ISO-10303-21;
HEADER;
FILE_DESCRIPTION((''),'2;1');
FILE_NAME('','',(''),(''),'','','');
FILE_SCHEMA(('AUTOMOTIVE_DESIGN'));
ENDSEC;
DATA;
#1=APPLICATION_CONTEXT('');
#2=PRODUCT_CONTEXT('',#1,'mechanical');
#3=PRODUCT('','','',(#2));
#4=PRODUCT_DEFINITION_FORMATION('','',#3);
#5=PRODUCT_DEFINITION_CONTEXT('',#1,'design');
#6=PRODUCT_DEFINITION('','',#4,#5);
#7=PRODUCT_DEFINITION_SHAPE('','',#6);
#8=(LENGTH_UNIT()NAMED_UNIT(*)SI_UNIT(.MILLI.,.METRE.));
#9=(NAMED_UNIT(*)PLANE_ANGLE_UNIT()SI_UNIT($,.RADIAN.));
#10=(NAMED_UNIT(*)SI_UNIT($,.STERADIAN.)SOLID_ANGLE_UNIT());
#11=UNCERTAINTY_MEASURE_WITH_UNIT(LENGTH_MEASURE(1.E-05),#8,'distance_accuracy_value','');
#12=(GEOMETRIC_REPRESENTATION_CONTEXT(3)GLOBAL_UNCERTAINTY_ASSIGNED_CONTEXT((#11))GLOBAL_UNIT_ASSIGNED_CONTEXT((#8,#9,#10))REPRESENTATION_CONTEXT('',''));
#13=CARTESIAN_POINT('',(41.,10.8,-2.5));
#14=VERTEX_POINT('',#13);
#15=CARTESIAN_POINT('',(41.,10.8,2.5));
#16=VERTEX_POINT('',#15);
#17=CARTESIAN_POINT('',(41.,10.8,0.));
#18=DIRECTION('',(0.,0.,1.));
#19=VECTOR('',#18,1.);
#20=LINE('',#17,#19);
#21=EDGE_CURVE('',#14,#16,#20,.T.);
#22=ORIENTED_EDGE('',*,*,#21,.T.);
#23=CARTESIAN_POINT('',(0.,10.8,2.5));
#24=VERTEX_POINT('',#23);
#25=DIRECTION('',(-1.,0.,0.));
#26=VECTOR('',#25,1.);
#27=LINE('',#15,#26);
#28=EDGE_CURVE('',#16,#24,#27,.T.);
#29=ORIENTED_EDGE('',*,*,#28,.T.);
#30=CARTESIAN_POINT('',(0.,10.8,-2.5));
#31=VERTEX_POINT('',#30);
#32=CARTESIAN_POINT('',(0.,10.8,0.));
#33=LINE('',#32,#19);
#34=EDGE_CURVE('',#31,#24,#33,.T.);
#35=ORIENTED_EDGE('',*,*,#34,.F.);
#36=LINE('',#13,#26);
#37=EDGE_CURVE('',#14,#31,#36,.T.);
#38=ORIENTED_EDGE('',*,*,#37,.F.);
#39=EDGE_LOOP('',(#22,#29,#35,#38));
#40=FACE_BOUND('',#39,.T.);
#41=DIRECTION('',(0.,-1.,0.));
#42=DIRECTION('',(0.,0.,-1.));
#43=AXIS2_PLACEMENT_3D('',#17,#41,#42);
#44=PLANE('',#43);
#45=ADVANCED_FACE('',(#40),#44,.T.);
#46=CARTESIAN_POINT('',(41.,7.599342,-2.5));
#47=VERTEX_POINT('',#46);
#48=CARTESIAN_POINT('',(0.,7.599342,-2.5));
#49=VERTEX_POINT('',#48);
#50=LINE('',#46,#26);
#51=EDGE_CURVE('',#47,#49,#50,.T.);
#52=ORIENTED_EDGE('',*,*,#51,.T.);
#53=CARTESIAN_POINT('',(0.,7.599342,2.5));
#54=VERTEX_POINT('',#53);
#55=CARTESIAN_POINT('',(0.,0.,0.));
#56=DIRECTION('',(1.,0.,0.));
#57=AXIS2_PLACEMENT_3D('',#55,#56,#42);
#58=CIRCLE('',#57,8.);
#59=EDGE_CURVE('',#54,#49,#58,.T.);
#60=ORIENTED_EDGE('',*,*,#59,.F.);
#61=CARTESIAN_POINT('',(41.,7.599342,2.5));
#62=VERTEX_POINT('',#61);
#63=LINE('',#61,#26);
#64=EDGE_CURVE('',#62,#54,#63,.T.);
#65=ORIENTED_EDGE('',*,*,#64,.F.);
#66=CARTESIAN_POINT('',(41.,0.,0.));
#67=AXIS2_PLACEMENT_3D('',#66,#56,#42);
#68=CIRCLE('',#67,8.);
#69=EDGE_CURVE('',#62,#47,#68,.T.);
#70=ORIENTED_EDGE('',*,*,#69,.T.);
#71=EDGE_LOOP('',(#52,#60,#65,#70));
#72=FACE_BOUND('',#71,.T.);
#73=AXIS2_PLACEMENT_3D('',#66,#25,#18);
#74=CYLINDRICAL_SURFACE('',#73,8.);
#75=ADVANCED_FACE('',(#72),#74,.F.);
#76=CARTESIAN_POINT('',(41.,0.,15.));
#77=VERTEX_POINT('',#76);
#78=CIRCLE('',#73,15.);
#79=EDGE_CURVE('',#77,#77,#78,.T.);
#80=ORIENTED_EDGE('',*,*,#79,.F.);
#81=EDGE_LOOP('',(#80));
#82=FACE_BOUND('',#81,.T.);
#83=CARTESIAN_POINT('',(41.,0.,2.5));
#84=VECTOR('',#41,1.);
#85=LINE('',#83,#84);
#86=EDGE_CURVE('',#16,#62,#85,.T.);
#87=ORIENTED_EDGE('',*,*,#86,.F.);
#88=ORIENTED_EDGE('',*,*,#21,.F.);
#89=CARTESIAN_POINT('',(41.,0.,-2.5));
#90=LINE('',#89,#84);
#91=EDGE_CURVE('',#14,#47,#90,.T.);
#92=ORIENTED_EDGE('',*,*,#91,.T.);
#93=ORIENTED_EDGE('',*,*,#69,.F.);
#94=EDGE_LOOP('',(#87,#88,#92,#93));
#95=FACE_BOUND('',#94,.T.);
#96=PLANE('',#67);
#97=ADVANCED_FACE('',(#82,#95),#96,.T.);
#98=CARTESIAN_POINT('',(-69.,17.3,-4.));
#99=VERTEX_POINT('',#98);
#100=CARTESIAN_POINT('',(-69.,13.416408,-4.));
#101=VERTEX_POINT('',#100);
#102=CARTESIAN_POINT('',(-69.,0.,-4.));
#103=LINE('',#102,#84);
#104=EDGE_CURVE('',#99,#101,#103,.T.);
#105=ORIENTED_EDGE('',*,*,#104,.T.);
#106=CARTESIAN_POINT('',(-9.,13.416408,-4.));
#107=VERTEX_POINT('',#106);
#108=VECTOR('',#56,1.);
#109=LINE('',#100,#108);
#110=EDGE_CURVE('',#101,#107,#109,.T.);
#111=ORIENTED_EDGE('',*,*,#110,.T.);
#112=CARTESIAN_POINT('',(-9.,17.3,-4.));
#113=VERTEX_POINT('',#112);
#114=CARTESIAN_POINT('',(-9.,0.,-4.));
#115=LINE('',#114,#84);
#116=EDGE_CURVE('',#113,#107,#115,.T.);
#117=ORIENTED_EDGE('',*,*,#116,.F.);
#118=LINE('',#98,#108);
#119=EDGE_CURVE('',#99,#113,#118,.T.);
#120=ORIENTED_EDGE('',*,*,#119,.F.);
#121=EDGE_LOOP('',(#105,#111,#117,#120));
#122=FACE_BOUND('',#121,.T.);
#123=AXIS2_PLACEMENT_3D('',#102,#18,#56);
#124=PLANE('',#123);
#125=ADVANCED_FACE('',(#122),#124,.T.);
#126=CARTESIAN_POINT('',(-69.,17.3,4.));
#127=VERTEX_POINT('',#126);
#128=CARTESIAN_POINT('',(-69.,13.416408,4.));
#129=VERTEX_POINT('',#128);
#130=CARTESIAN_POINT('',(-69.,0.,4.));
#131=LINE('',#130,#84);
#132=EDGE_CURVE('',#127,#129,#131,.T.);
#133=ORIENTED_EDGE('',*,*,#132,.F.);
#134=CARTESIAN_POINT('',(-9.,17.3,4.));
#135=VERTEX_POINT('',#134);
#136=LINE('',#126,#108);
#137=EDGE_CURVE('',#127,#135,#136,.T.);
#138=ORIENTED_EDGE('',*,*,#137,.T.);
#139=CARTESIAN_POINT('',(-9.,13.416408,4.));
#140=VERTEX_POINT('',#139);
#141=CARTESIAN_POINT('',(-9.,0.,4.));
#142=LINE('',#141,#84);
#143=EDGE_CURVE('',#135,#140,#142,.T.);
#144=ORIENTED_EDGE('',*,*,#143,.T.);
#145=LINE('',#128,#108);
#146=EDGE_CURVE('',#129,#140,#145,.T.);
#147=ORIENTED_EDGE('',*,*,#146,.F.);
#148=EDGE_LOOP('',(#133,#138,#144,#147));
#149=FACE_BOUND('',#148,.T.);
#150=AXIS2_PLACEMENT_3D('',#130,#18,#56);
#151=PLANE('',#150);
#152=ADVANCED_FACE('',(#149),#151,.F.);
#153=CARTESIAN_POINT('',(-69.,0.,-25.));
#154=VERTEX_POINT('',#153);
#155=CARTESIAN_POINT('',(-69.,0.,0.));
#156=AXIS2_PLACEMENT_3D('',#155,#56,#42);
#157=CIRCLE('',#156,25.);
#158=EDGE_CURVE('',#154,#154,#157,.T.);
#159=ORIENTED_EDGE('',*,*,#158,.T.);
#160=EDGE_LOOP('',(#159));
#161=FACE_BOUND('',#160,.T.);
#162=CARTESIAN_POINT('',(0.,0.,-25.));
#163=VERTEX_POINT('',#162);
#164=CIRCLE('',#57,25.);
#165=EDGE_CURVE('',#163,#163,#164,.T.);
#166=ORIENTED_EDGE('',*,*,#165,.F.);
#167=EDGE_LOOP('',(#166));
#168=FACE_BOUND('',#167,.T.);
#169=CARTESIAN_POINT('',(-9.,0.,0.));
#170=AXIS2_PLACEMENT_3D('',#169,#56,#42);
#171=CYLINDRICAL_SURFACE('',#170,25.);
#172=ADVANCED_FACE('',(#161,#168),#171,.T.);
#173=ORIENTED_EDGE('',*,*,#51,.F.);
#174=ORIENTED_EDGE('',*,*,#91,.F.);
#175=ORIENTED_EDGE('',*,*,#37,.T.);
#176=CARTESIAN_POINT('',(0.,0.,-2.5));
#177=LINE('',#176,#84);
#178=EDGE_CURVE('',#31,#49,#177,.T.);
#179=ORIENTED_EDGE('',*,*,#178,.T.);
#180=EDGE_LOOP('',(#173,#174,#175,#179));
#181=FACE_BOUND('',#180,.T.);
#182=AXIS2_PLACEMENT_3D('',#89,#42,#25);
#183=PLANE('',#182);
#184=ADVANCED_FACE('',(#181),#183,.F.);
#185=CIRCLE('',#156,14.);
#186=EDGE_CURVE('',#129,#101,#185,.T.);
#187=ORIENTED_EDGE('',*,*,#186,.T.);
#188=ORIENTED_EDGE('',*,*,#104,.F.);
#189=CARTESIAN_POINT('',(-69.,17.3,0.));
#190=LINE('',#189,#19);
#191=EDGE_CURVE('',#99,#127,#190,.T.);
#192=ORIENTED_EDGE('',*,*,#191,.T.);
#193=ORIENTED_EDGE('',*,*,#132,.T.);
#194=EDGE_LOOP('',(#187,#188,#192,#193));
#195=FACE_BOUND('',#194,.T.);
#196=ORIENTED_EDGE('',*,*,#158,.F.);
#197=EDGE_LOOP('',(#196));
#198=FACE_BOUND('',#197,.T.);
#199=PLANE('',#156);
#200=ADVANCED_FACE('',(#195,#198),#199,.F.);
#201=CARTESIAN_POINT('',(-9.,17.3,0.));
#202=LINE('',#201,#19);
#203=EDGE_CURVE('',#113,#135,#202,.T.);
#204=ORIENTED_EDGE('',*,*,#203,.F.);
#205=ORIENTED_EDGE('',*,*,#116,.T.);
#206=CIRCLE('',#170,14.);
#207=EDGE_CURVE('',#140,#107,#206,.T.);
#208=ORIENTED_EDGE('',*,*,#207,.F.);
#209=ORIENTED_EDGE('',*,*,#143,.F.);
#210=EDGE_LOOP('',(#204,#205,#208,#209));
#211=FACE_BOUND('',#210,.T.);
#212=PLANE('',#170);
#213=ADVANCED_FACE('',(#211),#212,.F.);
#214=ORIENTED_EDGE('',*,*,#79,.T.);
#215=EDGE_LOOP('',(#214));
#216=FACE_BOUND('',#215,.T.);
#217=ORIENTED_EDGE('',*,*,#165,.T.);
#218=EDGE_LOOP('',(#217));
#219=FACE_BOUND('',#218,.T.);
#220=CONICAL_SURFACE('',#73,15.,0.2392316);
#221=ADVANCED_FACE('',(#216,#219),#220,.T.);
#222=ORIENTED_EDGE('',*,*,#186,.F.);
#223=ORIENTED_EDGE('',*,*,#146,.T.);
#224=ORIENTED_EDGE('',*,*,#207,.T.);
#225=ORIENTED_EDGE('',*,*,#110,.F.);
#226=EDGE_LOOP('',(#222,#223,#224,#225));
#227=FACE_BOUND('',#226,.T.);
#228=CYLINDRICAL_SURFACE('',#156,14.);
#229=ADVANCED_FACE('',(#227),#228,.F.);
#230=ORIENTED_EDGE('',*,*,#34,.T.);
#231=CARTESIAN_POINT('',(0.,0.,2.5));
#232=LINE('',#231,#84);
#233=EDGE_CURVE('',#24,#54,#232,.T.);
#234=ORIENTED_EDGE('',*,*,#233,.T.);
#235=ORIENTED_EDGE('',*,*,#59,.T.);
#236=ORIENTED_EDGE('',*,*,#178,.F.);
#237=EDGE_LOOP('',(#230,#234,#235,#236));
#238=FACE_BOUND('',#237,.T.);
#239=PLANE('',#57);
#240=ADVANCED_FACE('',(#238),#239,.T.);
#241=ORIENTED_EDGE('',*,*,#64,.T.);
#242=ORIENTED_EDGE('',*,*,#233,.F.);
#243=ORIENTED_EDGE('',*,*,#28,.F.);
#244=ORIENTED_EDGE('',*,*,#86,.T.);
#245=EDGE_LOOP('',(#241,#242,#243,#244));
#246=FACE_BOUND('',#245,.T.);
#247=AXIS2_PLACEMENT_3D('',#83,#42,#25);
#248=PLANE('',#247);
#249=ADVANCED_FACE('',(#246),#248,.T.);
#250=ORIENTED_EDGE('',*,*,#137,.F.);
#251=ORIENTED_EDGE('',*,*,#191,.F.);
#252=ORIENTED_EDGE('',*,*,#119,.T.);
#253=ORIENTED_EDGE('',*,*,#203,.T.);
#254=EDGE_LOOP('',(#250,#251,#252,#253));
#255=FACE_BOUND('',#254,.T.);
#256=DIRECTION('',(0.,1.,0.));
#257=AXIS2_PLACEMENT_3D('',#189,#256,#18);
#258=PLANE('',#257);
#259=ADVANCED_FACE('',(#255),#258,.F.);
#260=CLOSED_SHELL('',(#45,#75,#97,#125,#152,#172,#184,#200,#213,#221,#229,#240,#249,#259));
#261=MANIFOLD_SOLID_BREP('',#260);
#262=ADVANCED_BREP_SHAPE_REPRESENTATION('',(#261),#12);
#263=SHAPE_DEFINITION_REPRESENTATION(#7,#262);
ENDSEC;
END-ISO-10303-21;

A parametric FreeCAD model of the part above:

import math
import FreeCAD as App
import Part
import Sketcher
from FreeCAD import Vector


def add_polygon(sketch, points):
    """Adds a closed chain of lines whose ends are joined by coincident constraints."""
    first, n = sketch.GeometryCount, len(points)
    for a, b in zip(points, points[1:] + points[:1]):
        sketch.addGeometry(Part.LineSegment(App.Vector(*a, 0), App.Vector(*b, 0)), False)
    for i in range(n):
        sketch.addConstraint(Sketcher.Constraint("Coincident", first + i, 2, first + (i + 1) % n, 1))

doc = App.newDocument("Part")
body = doc.addObject("PartDesign::Body", "Body")

sketch1 = doc.addObject("Sketcher::SketchObject", "Sketch")
body.addObject(sketch1)
sketch1.AttachmentSupport = (doc.YZ_Plane, [""])
sketch1.MapMode = "FlatFace"
sketch1.addGeometry(Part.Circle(Vector(0, 0, 0), Vector(0, 0, 1), 15), False)
sketch1.addGeometry(Part.LineSegment(Vector(10.8, 2.5, 0), Vector(10.8, -2.5, 0)), False)
sketch1.addGeometry(Part.LineSegment(Vector(10.8, -2.5, 0), Vector(7.599342, -2.5, 0)), False)
sketch1.addGeometry(Part.ArcOfCircle(Part.Circle(Vector(0, 0, 0), Vector(0, 0, 1), 8), math.radians(-90), math.radians(-18.209957)), False)
sketch1.addGeometry(Part.ArcOfCircle(Part.Circle(Vector(0, 0, 0), Vector(0, 0, 1), 8), math.radians(18.209957), math.radians(270)), False)
sketch1.addGeometry(Part.LineSegment(Vector(7.599342, 2.5, 0), Vector(10.8, 2.5, 0)), False)
sketch1.addConstraint(Sketcher.Constraint("Coincident", 1, 2, 2, 1))
sketch1.addConstraint(Sketcher.Constraint("Coincident", 2, 2, 3, 2))
sketch1.addConstraint(Sketcher.Constraint("Tangent", 3, 1, 4, 2))
sketch1.addConstraint(Sketcher.Constraint("Coincident", 4, 1, 5, 1))
sketch1.addConstraint(Sketcher.Constraint("Coincident", 5, 2, 1, 1))
sketch1.addConstraint(Sketcher.Constraint("Vertical", 1))
sketch1.addConstraint(Sketcher.Constraint("Horizontal", 2))
sketch1.addConstraint(Sketcher.Constraint("Horizontal", 5))
sketch1.addConstraint(Sketcher.Constraint("Coincident", 0, 3, -1, 1))
sketch1.addConstraint(Sketcher.Constraint("Coincident", 3, 3, -1, 1))
sketch1.addConstraint(Sketcher.Constraint("Equal", 3, 4))
sketch1.addConstraint(Sketcher.Constraint("PointOnObject", 3, 1, -2))
sketch1.addConstraint(Sketcher.Constraint("Vertical", 2, 2, 4, 1))
sketch1.addConstraint(Sketcher.Constraint("Diameter", 0, 30.0))
sketch1.addConstraint(Sketcher.Constraint("Radius", 3, 8.0))
sketch1.addConstraint(Sketcher.Constraint("DistanceY", 1, 2, 1, 1, 5.0))
sketch1.addConstraint(Sketcher.Constraint("DistanceX", -1, 1, 1, 2, 10.8))
pad1 = doc.addObject("PartDesign::Pad", "Pad")
body.addObject(pad1)
pad1.Profile = sketch1
pad1.Length = 41

sketch2 = doc.addObject("Sketcher::SketchObject", "Sketch001")
body.addObject(sketch2)
sketch2.AttachmentSupport = (doc.YZ_Plane, [""])
sketch2.MapMode = "FlatFace"
sketch2.addGeometry(Part.Circle(Vector(0, 0, 0), Vector(0, 0, 1), 25), False)
sketch2.addConstraint(Sketcher.Constraint("Coincident", 0, 3, -1, 1))
sketch2.addConstraint(Sketcher.Constraint("Diameter", 0, 50.0))
pad2 = doc.addObject("PartDesign::Pad", "Pad001")
body.addObject(pad2)
pad2.Profile = sketch2
pad2.Length = 9
pad2.Reversed = True

sketch3 = doc.addObject("Sketcher::SketchObject", "Sketch002")
body.addObject(sketch3)
sketch3.AttachmentSupport = (doc.YZ_Plane, [""])
sketch3.MapMode = "FlatFace"
sketch3.AttachmentOffset = App.Placement(Vector(0, 0, -9), App.Rotation())
sketch3.addGeometry(Part.Circle(Vector(0, 0, 0), Vector(0, 0, 1), 25), False)
sketch3.addGeometry(Part.ArcOfCircle(Part.Circle(Vector(0, 0, 0), Vector(0, 0, 1), 14), math.radians(-90), math.radians(-16.60155)), False)
sketch3.addGeometry(Part.ArcOfCircle(Part.Circle(Vector(0, 0, 0), Vector(0, 0, 1), 14), math.radians(16.60155), math.radians(270)), False)
sketch3.addGeometry(Part.LineSegment(Vector(13.416408, 4, 0), Vector(17.3, 4, 0)), False)
sketch3.addGeometry(Part.LineSegment(Vector(17.3, 4, 0), Vector(17.3, -4, 0)), False)
sketch3.addGeometry(Part.LineSegment(Vector(17.3, -4, 0), Vector(13.416408, -4, 0)), False)
sketch3.addConstraint(Sketcher.Constraint("Tangent", 1, 1, 2, 2))
sketch3.addConstraint(Sketcher.Constraint("Coincident", 2, 1, 3, 1))
sketch3.addConstraint(Sketcher.Constraint("Coincident", 3, 2, 4, 1))
sketch3.addConstraint(Sketcher.Constraint("Coincident", 4, 2, 5, 1))
sketch3.addConstraint(Sketcher.Constraint("Coincident", 5, 2, 1, 2))
sketch3.addConstraint(Sketcher.Constraint("Horizontal", 3))
sketch3.addConstraint(Sketcher.Constraint("Vertical", 4))
sketch3.addConstraint(Sketcher.Constraint("Horizontal", 5))
sketch3.addConstraint(Sketcher.Constraint("Coincident", 0, 3, -1, 1))
sketch3.addConstraint(Sketcher.Constraint("Coincident", 1, 3, -1, 1))
sketch3.addConstraint(Sketcher.Constraint("Equal", 1, 2))
sketch3.addConstraint(Sketcher.Constraint("PointOnObject", 1, 1, -2))
sketch3.addConstraint(Sketcher.Constraint("Vertical", 2, 1, 5, 2))
sketch3.addConstraint(Sketcher.Constraint("Diameter", 0, 50.0))
sketch3.addConstraint(Sketcher.Constraint("Radius", 1, 14.0))
sketch3.addConstraint(Sketcher.Constraint("DistanceY", 4, 2, 4, 1, 8.0))
sketch3.addConstraint(Sketcher.Constraint("DistanceX", -1, 1, 3, 2, 17.3))
pad3 = doc.addObject("PartDesign::Pad", "Pad002")
body.addObject(pad3)
pad3.Profile = sketch3
pad3.Length = 60
pad3.Reversed = True

sketch4 = doc.addObject("Sketcher::SketchObject", "Sketch003")
body.addObject(sketch4)
sketch4.AttachmentSupport = (doc.XZ_Plane, [""])
sketch4.MapMode = "FlatFace"
add_polygon(sketch4, [(0, -25), (0, -15), (41, -15)])
sketch4.addConstraint(Sketcher.Constraint("Vertical", 0))
sketch4.addConstraint(Sketcher.Constraint("Horizontal", 1))
sketch4.addConstraint(Sketcher.Constraint("PointOnObject", 0, 2, -2))
sketch4.addConstraint(Sketcher.Constraint("DistanceX", 1, 1, 1, 2, 41.0))
sketch4.addConstraint(Sketcher.Constraint("DistanceY", 0, 1, 0, 2, 10.0))
sketch4.addConstraint(Sketcher.Constraint("DistanceY", 0, 2, -1, 1, 15.0))
revolution = doc.addObject("PartDesign::Revolution", "Revolution")
body.addObject(revolution)
revolution.Profile = sketch4
revolution.ReferenceAxis = (sketch4, ["H_Axis"])
revolution.Angle = 360

doc.recompute()
